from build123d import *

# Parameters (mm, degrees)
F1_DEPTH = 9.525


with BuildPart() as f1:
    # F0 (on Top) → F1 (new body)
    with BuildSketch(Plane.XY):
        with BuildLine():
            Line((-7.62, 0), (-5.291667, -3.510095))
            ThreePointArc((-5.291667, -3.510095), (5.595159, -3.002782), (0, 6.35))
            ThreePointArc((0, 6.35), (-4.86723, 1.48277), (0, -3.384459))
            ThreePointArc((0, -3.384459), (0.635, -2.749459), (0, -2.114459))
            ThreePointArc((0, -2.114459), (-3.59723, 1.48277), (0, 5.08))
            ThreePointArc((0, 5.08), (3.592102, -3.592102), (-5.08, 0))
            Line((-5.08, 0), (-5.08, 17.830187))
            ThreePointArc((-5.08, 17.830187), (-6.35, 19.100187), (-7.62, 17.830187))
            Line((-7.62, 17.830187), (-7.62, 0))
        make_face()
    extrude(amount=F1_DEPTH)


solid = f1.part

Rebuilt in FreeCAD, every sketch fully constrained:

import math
import FreeCAD as App
import Part
import Sketcher
Q = App.Units.Quantity

doc = App.newDocument("Part")
params = doc.addObject("Spreadsheet::Sheet", "Params")
for row, (alias, value) in enumerate([
    ("sketch1_radius", "0.2 in"),
    ("sketch1_radius2", "0.25 in"),
    ("sketch1_radius3", "0.05 in"),
    ("pad1_length", "0.375 in"),
], start=1):
    params.set(f"A{row}", alias)
    params.set(f"B{row}", "=" + value)
    params.setAlias(f"B{row}", alias)

body = doc.addObject("PartDesign::Body", "Body")

sketch1 = body.newObject("Sketcher::SketchObject", "Sketch")
sketch1.AttachmentSupport = (doc.getObject("XY_Plane"), [""])
sketch1.MapMode = "FlatFace"
sketch1.addGeometry([
    Part.LineSegment(App.Vector(-7.62, 0, 0), App.Vector(-5.291667, -3.510095, 0)),
    Part.ArcOfCircle(Part.Circle(App.Vector(0, 0, 0), App.Vector(0, 0, 1), 6.35), math.radians(-146.44269), math.radians(89.999999)),
    Part.ArcOfCircle(Part.Circle(App.Vector(0, 1.48277, 0), App.Vector(0, 0, 1), 4.867229), math.radians(89.999994), math.radians(270.000006)),
    Part.ArcOfCircle(Part.Circle(App.Vector(0, -2.749459, 0), App.Vector(0, 0, 1), 0.635), math.radians(-90), math.radians(90)),
    Part.ArcOfCircle(Part.Circle(App.Vector(0, 1.48277, 0), App.Vector(0, 0, 1), 3.59723), math.radians(89.999992), math.radians(270.000008)),
    Part.ArcOfCircle(Part.Circle(App.Vector(0, 0, 0), App.Vector(0, 0, 1), 5.08), math.radians(-179.999997), math.radians(89.999997)),
    Part.LineSegment(App.Vector(-5.08, 0, 0), App.Vector(-5.08, 17.830187, 0)),
    Part.ArcOfCircle(Part.Circle(App.Vector(-6.35, 17.830187, 0), App.Vector(0, 0, 1), 1.27), math.radians(0), math.radians(180)),
    Part.LineSegment(App.Vector(-7.62, 17.830187, 0), App.Vector(-7.62, 0, 0)),
], False)
sketch1.addConstraint([
    Sketcher.Constraint("Tangent", 0, 2, 1, 1),
    Sketcher.Constraint("Tangent", 1, 2, 2, 1),
    Sketcher.Constraint("Tangent", 2, 2, 3, 1),
    Sketcher.Constraint("Tangent", 3, 2, 4, 2),
    Sketcher.Constraint("Tangent", 4, 1, 5, 2),
    Sketcher.Constraint("Tangent", 5, 1, 6, 1),
    Sketcher.Constraint("Tangent", 6, 2, 7, 1),
    Sketcher.Constraint("Tangent", 7, 2, 8, 1),
    Sketcher.Constraint("Coincident", 8, 2, 0, 1),
    Sketcher.Constraint("Vertical", 6),
    Sketcher.Constraint("Vertical", 8),
    Sketcher.Constraint("Coincident", 1, 3, -1, 1),
    Sketcher.Constraint("Coincident", 5, 3, -1, 1),
    Sketcher.Constraint("Coincident", 4, 3, 2, 3),
    Sketcher.Constraint("PointOnObject", 2, 3, -2),
    Sketcher.Constraint("PointOnObject", 3, 3, -2),
    Sketcher.Constraint("PointOnObject", 8, 2, -1),
    Sketcher.Constraint("Radius", 5, Q("0.2 in")),
    Sketcher.Constraint("Radius", 1, Q("0.25 in")),
    Sketcher.Constraint("Radius", 7, Q("0.05 in")),
    Sketcher.Constraint("Radius", 2, 4.867229),
    Sketcher.Constraint("DistanceY", 6, 1, 6, 2, 17.830187),
])
sketch1.setExpression("Constraints[17]", "Params.sketch1_radius")
sketch1.setExpression("Constraints[18]", "Params.sketch1_radius2")
sketch1.setExpression("Constraints[19]", "Params.sketch1_radius3")
pad1 = body.newObject("PartDesign::Pad", "Pad")
pad1.Profile = sketch1
pad1.setExpression("Length", "Params.pad1_length")

doc.recompute()
